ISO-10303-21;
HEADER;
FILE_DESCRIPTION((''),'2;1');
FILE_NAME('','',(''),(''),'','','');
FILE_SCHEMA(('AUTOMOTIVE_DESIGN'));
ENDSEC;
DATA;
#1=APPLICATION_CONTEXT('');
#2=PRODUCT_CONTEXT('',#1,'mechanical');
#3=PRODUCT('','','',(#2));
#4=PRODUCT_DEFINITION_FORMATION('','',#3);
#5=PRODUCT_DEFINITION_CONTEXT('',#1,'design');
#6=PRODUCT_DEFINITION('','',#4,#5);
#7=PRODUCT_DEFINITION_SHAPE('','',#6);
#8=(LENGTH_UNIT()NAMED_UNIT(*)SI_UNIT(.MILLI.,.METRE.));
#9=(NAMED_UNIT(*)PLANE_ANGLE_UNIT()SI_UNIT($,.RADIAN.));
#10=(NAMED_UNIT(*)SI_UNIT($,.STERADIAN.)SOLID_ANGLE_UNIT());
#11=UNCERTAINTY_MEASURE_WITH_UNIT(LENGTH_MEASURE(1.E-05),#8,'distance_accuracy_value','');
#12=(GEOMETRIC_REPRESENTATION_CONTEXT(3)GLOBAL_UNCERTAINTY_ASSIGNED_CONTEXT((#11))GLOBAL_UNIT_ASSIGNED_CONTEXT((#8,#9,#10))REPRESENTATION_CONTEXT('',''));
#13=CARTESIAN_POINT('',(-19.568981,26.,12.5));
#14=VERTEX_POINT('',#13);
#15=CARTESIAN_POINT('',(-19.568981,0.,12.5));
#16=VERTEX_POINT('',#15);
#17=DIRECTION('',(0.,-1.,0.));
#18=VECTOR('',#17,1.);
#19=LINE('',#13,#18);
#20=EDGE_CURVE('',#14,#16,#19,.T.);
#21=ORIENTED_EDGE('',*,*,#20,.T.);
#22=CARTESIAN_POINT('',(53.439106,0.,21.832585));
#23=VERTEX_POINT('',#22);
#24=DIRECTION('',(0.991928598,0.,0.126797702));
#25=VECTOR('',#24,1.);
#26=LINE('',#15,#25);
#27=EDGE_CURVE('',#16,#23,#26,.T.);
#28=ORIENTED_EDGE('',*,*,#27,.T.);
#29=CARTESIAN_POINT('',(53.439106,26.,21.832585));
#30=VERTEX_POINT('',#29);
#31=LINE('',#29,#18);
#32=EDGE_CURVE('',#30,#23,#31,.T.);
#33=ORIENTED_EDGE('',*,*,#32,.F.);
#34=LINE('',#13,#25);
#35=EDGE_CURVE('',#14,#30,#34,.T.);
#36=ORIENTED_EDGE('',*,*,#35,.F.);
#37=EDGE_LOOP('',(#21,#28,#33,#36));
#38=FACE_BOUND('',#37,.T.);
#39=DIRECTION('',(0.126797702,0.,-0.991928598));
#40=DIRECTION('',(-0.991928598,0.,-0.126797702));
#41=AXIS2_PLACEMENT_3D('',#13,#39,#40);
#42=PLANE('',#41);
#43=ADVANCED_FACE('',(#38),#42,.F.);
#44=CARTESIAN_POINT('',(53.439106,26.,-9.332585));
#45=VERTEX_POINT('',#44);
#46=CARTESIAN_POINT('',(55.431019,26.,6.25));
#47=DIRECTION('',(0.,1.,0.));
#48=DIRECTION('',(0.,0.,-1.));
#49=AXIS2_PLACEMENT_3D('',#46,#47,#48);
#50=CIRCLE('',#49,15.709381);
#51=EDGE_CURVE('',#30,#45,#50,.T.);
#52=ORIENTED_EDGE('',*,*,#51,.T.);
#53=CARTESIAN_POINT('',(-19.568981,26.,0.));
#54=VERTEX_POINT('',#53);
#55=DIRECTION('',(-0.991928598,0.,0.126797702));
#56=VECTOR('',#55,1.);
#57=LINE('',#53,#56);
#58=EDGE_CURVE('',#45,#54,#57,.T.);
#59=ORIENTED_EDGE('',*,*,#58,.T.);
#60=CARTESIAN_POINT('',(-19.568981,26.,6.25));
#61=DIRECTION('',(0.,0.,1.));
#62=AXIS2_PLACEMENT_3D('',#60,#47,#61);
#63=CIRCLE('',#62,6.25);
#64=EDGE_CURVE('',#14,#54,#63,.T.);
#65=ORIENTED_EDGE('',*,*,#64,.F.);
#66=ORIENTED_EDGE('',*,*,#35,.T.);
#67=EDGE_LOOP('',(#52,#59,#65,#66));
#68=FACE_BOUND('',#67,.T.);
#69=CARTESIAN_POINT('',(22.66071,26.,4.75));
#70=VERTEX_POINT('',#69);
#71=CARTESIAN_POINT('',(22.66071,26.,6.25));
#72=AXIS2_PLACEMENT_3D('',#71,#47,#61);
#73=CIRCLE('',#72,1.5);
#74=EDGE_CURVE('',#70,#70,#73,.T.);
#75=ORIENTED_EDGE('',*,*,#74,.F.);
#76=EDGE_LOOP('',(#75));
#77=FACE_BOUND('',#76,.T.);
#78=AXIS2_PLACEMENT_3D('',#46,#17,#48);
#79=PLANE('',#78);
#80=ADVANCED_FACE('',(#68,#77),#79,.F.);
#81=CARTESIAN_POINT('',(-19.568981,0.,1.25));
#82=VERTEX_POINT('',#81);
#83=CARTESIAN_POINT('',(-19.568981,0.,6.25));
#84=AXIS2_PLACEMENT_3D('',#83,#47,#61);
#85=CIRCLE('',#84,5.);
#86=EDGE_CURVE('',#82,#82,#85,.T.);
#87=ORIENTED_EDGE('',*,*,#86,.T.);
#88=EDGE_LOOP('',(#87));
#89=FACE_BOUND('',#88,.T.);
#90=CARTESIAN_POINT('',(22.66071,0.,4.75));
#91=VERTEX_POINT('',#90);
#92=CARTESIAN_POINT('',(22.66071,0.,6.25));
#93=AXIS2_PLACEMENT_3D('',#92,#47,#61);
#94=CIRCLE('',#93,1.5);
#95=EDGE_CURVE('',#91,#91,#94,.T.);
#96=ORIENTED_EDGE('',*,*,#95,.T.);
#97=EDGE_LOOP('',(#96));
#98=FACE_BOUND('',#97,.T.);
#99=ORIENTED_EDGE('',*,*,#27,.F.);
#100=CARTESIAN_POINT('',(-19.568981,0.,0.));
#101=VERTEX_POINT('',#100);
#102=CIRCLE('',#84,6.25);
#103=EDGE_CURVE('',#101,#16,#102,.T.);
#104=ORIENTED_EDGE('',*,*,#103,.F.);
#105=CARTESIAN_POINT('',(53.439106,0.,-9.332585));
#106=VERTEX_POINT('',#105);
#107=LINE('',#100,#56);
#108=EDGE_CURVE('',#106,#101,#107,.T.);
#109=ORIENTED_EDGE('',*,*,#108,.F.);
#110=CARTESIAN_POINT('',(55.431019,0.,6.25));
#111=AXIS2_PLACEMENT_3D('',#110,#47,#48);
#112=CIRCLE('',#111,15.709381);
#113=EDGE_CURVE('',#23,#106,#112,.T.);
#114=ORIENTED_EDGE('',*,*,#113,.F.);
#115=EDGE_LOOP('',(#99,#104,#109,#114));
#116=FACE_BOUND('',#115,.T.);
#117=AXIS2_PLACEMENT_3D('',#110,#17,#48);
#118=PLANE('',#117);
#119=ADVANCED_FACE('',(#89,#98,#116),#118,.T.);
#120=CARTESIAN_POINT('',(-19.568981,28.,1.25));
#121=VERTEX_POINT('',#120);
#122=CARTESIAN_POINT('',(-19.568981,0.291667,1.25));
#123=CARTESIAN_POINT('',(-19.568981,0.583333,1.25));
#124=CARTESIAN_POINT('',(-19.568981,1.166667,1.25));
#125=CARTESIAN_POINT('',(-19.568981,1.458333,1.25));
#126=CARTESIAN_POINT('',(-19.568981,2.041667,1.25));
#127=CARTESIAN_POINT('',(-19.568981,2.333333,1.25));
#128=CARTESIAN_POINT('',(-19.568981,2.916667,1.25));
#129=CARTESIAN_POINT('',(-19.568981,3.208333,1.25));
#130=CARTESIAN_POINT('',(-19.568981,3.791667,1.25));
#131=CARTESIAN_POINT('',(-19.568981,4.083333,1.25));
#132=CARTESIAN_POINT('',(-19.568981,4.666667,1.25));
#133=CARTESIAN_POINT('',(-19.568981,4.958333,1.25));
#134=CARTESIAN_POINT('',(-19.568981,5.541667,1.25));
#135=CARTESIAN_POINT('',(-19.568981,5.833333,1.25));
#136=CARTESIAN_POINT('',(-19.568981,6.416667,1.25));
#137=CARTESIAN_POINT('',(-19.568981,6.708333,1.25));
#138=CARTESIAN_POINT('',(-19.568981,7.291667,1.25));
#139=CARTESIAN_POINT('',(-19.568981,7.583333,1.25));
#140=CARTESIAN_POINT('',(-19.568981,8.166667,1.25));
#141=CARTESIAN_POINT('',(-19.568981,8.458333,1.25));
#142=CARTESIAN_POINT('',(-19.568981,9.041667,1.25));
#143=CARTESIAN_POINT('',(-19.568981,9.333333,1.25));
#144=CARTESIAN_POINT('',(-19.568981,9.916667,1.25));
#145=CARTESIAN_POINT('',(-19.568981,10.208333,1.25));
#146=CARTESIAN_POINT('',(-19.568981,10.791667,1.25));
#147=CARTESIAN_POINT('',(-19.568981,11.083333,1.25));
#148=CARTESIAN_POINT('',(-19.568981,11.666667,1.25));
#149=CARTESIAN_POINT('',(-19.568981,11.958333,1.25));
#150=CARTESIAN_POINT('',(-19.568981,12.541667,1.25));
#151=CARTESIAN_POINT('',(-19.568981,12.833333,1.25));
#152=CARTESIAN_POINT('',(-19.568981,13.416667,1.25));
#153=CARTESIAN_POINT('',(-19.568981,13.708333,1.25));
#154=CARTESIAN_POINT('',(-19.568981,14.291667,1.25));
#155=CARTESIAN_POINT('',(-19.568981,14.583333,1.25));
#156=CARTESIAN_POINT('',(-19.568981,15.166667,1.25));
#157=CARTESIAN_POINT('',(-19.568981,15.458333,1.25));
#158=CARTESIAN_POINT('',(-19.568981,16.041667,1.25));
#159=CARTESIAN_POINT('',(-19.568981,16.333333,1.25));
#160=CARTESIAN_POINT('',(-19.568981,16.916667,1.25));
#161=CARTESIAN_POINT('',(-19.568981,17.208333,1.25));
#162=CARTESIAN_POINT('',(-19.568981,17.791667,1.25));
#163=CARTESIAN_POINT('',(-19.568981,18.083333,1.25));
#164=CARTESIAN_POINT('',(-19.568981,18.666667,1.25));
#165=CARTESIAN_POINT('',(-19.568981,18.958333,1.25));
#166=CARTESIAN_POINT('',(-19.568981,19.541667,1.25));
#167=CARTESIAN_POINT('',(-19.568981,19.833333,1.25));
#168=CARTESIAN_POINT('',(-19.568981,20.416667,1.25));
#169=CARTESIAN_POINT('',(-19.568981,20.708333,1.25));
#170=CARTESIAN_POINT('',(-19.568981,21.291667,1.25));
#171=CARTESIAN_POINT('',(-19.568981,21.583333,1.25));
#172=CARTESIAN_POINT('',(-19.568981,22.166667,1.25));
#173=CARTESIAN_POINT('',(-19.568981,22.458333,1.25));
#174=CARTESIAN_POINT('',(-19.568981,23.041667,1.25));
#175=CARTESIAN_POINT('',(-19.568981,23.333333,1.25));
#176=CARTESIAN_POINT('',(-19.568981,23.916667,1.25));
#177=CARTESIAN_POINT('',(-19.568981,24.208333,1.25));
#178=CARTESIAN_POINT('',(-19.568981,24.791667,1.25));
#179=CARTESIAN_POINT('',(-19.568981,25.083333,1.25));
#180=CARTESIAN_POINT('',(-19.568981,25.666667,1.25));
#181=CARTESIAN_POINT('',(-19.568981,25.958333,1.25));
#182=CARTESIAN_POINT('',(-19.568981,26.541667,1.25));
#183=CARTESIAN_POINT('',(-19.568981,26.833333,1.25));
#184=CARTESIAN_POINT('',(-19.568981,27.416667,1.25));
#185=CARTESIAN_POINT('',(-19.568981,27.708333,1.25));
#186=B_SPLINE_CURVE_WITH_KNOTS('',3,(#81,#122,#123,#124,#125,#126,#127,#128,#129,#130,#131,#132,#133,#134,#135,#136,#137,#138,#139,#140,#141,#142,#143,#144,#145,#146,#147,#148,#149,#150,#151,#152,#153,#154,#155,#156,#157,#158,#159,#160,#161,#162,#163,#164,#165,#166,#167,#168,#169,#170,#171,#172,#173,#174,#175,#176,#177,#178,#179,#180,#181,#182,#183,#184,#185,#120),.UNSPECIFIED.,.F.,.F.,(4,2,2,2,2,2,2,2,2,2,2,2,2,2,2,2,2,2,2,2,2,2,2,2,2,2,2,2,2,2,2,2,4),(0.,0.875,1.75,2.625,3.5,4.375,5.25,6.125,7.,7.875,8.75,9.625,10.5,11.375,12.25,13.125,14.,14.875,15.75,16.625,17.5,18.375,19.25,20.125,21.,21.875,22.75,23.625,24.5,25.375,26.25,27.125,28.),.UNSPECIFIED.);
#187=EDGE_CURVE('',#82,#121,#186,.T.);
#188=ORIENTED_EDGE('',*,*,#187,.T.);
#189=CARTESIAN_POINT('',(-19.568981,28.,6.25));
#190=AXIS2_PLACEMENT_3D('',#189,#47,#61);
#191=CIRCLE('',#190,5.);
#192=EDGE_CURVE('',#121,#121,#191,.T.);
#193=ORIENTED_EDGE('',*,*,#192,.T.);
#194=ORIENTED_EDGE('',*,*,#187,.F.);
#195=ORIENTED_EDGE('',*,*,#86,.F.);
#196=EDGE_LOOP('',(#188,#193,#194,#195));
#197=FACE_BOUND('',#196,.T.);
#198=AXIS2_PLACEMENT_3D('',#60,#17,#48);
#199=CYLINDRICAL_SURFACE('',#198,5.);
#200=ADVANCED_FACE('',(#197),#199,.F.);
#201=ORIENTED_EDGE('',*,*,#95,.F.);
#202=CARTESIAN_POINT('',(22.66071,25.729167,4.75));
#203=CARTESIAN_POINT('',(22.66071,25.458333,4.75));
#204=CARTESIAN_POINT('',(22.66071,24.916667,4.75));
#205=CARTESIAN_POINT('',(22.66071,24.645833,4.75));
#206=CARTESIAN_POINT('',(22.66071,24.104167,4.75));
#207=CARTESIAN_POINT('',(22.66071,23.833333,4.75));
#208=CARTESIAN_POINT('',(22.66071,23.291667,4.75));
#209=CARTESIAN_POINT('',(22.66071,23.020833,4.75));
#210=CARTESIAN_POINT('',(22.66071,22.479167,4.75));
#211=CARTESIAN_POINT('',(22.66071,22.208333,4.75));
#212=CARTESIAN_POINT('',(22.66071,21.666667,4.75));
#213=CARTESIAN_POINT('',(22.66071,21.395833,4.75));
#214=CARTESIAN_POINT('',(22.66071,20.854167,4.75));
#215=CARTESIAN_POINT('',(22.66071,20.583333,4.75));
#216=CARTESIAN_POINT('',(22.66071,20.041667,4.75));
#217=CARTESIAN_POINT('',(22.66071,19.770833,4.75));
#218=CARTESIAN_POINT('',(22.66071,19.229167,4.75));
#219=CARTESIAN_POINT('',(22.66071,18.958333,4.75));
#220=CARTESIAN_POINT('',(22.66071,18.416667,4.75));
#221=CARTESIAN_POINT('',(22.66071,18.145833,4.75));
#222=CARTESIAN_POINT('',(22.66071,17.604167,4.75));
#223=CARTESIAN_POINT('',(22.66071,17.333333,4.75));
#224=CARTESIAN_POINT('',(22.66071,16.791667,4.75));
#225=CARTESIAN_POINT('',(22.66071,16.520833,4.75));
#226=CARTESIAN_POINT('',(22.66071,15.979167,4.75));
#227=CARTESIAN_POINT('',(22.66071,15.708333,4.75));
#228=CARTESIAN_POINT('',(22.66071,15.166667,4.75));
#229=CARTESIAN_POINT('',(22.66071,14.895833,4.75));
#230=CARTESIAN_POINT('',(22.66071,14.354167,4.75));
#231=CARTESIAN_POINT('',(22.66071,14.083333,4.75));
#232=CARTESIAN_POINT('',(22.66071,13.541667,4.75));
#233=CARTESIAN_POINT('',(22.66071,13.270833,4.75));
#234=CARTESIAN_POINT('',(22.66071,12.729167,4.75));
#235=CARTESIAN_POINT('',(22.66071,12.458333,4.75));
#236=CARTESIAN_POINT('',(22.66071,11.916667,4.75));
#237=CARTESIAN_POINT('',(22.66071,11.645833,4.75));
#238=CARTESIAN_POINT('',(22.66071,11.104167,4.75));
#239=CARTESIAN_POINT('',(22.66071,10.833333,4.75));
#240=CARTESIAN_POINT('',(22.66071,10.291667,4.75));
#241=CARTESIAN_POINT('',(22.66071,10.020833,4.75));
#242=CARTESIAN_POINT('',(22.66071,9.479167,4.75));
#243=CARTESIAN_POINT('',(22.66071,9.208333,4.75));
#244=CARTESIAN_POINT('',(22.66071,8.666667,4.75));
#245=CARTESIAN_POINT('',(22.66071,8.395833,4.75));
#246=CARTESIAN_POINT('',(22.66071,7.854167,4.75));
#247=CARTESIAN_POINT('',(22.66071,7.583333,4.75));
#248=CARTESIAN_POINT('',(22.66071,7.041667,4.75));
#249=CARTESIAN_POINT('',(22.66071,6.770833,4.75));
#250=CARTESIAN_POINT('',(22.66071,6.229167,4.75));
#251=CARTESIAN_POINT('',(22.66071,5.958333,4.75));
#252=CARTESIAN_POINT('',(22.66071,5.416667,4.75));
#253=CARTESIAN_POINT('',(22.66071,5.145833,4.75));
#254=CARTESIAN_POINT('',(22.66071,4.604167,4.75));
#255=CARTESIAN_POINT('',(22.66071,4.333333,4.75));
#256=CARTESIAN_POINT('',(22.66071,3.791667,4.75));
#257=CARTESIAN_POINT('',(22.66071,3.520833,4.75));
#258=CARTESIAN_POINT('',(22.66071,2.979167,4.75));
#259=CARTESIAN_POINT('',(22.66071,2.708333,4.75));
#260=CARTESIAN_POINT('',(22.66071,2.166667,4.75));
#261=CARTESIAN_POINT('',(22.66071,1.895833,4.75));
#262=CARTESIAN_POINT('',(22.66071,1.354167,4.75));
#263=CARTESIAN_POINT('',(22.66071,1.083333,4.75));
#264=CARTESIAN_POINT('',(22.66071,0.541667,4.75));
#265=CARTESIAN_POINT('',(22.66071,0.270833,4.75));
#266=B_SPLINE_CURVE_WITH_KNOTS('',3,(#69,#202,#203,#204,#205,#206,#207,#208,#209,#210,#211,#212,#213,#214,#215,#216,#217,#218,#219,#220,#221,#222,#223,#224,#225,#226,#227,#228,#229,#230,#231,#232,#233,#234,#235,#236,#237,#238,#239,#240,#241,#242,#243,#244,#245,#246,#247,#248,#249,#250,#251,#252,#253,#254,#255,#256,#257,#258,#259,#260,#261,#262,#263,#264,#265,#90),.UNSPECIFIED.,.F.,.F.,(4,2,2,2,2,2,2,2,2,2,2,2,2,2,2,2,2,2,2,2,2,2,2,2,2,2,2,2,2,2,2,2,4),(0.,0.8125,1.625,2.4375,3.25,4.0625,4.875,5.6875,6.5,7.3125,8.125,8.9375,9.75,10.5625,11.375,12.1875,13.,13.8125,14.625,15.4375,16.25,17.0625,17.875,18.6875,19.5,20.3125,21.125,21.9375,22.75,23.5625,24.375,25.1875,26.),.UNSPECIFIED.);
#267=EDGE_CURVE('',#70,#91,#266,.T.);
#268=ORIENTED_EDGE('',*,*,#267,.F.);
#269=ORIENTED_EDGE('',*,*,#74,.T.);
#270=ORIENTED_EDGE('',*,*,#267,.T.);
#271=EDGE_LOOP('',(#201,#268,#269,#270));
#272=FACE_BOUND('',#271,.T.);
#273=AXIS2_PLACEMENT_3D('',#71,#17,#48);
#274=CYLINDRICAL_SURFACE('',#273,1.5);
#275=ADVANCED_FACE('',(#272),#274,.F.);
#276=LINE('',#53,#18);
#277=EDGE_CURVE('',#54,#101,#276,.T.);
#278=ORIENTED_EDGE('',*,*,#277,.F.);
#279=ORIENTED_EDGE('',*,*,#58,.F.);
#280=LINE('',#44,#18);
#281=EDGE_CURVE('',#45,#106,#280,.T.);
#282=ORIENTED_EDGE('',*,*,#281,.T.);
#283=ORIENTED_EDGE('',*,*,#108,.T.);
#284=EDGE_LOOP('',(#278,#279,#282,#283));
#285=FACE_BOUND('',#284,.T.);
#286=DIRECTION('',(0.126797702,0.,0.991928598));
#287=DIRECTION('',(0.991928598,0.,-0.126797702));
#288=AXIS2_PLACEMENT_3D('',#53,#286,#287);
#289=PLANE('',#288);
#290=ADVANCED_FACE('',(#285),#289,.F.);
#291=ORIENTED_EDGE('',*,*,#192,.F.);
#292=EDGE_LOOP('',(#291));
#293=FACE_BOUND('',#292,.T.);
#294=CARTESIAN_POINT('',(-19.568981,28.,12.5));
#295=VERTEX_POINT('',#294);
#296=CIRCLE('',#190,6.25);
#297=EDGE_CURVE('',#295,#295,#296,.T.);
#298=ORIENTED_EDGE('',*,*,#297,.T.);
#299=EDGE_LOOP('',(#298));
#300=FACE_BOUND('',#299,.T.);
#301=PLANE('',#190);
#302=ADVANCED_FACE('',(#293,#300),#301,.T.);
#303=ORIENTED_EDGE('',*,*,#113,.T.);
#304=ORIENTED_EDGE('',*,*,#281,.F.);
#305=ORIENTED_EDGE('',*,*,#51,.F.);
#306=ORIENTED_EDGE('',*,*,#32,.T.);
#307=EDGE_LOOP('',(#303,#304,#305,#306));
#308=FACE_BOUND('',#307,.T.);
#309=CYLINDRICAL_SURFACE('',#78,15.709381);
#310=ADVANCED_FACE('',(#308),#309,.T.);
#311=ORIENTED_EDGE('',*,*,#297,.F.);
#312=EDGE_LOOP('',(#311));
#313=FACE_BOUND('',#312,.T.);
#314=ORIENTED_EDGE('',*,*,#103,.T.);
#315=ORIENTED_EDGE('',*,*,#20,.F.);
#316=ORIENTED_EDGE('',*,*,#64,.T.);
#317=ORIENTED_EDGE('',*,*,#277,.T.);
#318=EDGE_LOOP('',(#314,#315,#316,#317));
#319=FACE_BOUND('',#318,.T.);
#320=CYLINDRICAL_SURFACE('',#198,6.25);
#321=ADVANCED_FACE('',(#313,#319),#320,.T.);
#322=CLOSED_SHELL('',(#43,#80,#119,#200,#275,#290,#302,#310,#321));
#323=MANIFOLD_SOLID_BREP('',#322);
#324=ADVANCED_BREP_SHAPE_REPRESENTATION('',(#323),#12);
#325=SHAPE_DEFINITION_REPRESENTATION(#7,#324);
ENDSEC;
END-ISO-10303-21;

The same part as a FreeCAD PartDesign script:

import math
import FreeCAD as App
import Part
import Sketcher
from FreeCAD import Vector
Q = App.Units.Quantity

doc = App.newDocument("Part")
body = doc.addObject("PartDesign::Body", "Body")

# Sketch on XZ plane
sketch1 = body.newObject("Sketcher::SketchObject", "Sketch")
sketch1.AttachmentSupport = (doc.getObject("XZ_Plane"), [""])
sketch1.MapMode = "FlatFace"
sketch1.addGeometry(Part.LineSegment(Vector(53.439106, -9.332585, 0), Vector(-19.568981, 0, 0)), False)
sketch1.addGeometry(Part.ArcOfCircle(Part.Circle(Vector(-19.568981, 6.25, 0), Vector(0, 0, 1), 6.25), math.radians(90), math.radians(270)), False)
sketch1.addGeometry(Part.LineSegment(Vector(-19.568981, 12.5, 0), Vector(53.439106, 21.832585, 0)), False)
sketch1.addGeometry(Part.ArcOfCircle(Part.Circle(Vector(55.431019, 6.25, 0), Vector(0, 0, 1), 15.709381), math.radians(-97.284583), math.radians(97.284583)), False)
sketch1.addGeometry(Part.Circle(Vector(22.66071, 6.25, 0), Vector(0, 0, 1), 1.5), False)
sketch1.addGeometry(Part.Circle(Vector(-19.568981, 6.25, 0), Vector(0, 0, 1), 5), False)
sketch1.addConstraint(Sketcher.Constraint("Coincident", 0, 2, 1, 2))
sketch1.addConstraint(Sketcher.Constraint("Coincident", 1, 1, 2, 1))
sketch1.addConstraint(Sketcher.Constraint("Tangent", 2, 2, 3, 2))
sketch1.addConstraint(Sketcher.Constraint("Tangent", 3, 1, 0, 1))
sketch1.addConstraint(Sketcher.Constraint("Coincident", 5, 3, 1, 3))
sketch1.addConstraint(Sketcher.Constraint("PointOnObject", 0, 2, -1))
sketch1.addConstraint(Sketcher.Constraint("Horizontal", 1, 3, 3, 3))
sketch1.addConstraint(Sketcher.Constraint("Horizontal", 3, 3, 4, 3))
sketch1.addConstraint(Sketcher.Constraint("Vertical", 5, 3, 0, 2))
sketch1.addConstraint(Sketcher.Constraint("Vertical", 0, 2, 1, 1))
sketch1.addConstraint(Sketcher.Constraint("Diameter", 4, Q("3 mm")))
sketch1.addConstraint(Sketcher.Constraint("Diameter", 5, Q("10 mm")))
sketch1.addConstraint(Sketcher.Constraint("Radius", 1, Q("6.25 mm")))
sketch1.addConstraint(Sketcher.Constraint("DistanceX", 1, 3, 3, 3, Q("75 mm")))
sketch1.addConstraint(Sketcher.Constraint("Radius", 3, Q("15.709381 mm")))
sketch1.addConstraint(Sketcher.Constraint("DistanceX", 1, 3, -1, 1, Q("19.568981 mm")))
sketch1.addConstraint(Sketcher.Constraint("DistanceX", -1, 1, 4, 3, Q("22.66071 mm")))
pad1 = body.newObject("PartDesign::Pad", "Pad")
pad1.Profile = sketch1
pad1.Length = 26
pad1.Reversed = True

# Sketch on XZ plane
sketch2 = body.newObject("Sketcher::SketchObject", "Sketch001")
sketch2.AttachmentSupport = (doc.getObject("XZ_Plane"), [""])
sketch2.MapMode = "FlatFace"
sketch2.AttachmentOffset = App.Placement(Vector(0, 0, -26), App.Rotation())
sketch2.addGeometry(Part.Circle(Vector(-19.568981, 6.25, 0), Vector(0, 0, 1), 6.25), False)
sketch2.addConstraint(Sketcher.Constraint("Diameter", 0, Q("12.5 mm")))
sketch2.addConstraint(Sketcher.Constraint("DistanceY", -1, 1, 0, 3, Q("6.25 mm")))
sketch2.addConstraint(Sketcher.Constraint("DistanceX", 0, 3, -1, 1, Q("19.568981 mm")))
pad2 = body.newObject("PartDesign::Pad", "Pad001")
pad2.Profile = sketch2
pad2.Length = 2
pad2.Reversed = True

# Sketch on XZ plane
sketch3 = body.newObject("Sketcher::SketchObject", "Sketch002")
sketch3.AttachmentSupport = (doc.getObject("XZ_Plane"), [""])
sketch3.MapMode = "FlatFace"
sketch3.AttachmentOffset = App.Placement(Vector(0, 0, -26), App.Rotation())
sketch3.addGeometry(Part.Circle(Vector(-19.568981, 6.25, 0), Vector(0, 0, 1), 5), False)
sketch3.addConstraint(Sketcher.Constraint("Diameter", 0, Q("10 mm")))
sketch3.addConstraint(Sketcher.Constraint("DistanceY", -1, 1, 0, 3, Q("6.25 mm")))
sketch3.addConstraint(Sketcher.Constraint("DistanceX", 0, 3, -1, 1, Q("19.568981 mm")))
pocket1 = body.newObject("PartDesign::Pocket", "Pocket")
pocket1.Profile = sketch3
pocket1.Length = 2

doc.recompute()
